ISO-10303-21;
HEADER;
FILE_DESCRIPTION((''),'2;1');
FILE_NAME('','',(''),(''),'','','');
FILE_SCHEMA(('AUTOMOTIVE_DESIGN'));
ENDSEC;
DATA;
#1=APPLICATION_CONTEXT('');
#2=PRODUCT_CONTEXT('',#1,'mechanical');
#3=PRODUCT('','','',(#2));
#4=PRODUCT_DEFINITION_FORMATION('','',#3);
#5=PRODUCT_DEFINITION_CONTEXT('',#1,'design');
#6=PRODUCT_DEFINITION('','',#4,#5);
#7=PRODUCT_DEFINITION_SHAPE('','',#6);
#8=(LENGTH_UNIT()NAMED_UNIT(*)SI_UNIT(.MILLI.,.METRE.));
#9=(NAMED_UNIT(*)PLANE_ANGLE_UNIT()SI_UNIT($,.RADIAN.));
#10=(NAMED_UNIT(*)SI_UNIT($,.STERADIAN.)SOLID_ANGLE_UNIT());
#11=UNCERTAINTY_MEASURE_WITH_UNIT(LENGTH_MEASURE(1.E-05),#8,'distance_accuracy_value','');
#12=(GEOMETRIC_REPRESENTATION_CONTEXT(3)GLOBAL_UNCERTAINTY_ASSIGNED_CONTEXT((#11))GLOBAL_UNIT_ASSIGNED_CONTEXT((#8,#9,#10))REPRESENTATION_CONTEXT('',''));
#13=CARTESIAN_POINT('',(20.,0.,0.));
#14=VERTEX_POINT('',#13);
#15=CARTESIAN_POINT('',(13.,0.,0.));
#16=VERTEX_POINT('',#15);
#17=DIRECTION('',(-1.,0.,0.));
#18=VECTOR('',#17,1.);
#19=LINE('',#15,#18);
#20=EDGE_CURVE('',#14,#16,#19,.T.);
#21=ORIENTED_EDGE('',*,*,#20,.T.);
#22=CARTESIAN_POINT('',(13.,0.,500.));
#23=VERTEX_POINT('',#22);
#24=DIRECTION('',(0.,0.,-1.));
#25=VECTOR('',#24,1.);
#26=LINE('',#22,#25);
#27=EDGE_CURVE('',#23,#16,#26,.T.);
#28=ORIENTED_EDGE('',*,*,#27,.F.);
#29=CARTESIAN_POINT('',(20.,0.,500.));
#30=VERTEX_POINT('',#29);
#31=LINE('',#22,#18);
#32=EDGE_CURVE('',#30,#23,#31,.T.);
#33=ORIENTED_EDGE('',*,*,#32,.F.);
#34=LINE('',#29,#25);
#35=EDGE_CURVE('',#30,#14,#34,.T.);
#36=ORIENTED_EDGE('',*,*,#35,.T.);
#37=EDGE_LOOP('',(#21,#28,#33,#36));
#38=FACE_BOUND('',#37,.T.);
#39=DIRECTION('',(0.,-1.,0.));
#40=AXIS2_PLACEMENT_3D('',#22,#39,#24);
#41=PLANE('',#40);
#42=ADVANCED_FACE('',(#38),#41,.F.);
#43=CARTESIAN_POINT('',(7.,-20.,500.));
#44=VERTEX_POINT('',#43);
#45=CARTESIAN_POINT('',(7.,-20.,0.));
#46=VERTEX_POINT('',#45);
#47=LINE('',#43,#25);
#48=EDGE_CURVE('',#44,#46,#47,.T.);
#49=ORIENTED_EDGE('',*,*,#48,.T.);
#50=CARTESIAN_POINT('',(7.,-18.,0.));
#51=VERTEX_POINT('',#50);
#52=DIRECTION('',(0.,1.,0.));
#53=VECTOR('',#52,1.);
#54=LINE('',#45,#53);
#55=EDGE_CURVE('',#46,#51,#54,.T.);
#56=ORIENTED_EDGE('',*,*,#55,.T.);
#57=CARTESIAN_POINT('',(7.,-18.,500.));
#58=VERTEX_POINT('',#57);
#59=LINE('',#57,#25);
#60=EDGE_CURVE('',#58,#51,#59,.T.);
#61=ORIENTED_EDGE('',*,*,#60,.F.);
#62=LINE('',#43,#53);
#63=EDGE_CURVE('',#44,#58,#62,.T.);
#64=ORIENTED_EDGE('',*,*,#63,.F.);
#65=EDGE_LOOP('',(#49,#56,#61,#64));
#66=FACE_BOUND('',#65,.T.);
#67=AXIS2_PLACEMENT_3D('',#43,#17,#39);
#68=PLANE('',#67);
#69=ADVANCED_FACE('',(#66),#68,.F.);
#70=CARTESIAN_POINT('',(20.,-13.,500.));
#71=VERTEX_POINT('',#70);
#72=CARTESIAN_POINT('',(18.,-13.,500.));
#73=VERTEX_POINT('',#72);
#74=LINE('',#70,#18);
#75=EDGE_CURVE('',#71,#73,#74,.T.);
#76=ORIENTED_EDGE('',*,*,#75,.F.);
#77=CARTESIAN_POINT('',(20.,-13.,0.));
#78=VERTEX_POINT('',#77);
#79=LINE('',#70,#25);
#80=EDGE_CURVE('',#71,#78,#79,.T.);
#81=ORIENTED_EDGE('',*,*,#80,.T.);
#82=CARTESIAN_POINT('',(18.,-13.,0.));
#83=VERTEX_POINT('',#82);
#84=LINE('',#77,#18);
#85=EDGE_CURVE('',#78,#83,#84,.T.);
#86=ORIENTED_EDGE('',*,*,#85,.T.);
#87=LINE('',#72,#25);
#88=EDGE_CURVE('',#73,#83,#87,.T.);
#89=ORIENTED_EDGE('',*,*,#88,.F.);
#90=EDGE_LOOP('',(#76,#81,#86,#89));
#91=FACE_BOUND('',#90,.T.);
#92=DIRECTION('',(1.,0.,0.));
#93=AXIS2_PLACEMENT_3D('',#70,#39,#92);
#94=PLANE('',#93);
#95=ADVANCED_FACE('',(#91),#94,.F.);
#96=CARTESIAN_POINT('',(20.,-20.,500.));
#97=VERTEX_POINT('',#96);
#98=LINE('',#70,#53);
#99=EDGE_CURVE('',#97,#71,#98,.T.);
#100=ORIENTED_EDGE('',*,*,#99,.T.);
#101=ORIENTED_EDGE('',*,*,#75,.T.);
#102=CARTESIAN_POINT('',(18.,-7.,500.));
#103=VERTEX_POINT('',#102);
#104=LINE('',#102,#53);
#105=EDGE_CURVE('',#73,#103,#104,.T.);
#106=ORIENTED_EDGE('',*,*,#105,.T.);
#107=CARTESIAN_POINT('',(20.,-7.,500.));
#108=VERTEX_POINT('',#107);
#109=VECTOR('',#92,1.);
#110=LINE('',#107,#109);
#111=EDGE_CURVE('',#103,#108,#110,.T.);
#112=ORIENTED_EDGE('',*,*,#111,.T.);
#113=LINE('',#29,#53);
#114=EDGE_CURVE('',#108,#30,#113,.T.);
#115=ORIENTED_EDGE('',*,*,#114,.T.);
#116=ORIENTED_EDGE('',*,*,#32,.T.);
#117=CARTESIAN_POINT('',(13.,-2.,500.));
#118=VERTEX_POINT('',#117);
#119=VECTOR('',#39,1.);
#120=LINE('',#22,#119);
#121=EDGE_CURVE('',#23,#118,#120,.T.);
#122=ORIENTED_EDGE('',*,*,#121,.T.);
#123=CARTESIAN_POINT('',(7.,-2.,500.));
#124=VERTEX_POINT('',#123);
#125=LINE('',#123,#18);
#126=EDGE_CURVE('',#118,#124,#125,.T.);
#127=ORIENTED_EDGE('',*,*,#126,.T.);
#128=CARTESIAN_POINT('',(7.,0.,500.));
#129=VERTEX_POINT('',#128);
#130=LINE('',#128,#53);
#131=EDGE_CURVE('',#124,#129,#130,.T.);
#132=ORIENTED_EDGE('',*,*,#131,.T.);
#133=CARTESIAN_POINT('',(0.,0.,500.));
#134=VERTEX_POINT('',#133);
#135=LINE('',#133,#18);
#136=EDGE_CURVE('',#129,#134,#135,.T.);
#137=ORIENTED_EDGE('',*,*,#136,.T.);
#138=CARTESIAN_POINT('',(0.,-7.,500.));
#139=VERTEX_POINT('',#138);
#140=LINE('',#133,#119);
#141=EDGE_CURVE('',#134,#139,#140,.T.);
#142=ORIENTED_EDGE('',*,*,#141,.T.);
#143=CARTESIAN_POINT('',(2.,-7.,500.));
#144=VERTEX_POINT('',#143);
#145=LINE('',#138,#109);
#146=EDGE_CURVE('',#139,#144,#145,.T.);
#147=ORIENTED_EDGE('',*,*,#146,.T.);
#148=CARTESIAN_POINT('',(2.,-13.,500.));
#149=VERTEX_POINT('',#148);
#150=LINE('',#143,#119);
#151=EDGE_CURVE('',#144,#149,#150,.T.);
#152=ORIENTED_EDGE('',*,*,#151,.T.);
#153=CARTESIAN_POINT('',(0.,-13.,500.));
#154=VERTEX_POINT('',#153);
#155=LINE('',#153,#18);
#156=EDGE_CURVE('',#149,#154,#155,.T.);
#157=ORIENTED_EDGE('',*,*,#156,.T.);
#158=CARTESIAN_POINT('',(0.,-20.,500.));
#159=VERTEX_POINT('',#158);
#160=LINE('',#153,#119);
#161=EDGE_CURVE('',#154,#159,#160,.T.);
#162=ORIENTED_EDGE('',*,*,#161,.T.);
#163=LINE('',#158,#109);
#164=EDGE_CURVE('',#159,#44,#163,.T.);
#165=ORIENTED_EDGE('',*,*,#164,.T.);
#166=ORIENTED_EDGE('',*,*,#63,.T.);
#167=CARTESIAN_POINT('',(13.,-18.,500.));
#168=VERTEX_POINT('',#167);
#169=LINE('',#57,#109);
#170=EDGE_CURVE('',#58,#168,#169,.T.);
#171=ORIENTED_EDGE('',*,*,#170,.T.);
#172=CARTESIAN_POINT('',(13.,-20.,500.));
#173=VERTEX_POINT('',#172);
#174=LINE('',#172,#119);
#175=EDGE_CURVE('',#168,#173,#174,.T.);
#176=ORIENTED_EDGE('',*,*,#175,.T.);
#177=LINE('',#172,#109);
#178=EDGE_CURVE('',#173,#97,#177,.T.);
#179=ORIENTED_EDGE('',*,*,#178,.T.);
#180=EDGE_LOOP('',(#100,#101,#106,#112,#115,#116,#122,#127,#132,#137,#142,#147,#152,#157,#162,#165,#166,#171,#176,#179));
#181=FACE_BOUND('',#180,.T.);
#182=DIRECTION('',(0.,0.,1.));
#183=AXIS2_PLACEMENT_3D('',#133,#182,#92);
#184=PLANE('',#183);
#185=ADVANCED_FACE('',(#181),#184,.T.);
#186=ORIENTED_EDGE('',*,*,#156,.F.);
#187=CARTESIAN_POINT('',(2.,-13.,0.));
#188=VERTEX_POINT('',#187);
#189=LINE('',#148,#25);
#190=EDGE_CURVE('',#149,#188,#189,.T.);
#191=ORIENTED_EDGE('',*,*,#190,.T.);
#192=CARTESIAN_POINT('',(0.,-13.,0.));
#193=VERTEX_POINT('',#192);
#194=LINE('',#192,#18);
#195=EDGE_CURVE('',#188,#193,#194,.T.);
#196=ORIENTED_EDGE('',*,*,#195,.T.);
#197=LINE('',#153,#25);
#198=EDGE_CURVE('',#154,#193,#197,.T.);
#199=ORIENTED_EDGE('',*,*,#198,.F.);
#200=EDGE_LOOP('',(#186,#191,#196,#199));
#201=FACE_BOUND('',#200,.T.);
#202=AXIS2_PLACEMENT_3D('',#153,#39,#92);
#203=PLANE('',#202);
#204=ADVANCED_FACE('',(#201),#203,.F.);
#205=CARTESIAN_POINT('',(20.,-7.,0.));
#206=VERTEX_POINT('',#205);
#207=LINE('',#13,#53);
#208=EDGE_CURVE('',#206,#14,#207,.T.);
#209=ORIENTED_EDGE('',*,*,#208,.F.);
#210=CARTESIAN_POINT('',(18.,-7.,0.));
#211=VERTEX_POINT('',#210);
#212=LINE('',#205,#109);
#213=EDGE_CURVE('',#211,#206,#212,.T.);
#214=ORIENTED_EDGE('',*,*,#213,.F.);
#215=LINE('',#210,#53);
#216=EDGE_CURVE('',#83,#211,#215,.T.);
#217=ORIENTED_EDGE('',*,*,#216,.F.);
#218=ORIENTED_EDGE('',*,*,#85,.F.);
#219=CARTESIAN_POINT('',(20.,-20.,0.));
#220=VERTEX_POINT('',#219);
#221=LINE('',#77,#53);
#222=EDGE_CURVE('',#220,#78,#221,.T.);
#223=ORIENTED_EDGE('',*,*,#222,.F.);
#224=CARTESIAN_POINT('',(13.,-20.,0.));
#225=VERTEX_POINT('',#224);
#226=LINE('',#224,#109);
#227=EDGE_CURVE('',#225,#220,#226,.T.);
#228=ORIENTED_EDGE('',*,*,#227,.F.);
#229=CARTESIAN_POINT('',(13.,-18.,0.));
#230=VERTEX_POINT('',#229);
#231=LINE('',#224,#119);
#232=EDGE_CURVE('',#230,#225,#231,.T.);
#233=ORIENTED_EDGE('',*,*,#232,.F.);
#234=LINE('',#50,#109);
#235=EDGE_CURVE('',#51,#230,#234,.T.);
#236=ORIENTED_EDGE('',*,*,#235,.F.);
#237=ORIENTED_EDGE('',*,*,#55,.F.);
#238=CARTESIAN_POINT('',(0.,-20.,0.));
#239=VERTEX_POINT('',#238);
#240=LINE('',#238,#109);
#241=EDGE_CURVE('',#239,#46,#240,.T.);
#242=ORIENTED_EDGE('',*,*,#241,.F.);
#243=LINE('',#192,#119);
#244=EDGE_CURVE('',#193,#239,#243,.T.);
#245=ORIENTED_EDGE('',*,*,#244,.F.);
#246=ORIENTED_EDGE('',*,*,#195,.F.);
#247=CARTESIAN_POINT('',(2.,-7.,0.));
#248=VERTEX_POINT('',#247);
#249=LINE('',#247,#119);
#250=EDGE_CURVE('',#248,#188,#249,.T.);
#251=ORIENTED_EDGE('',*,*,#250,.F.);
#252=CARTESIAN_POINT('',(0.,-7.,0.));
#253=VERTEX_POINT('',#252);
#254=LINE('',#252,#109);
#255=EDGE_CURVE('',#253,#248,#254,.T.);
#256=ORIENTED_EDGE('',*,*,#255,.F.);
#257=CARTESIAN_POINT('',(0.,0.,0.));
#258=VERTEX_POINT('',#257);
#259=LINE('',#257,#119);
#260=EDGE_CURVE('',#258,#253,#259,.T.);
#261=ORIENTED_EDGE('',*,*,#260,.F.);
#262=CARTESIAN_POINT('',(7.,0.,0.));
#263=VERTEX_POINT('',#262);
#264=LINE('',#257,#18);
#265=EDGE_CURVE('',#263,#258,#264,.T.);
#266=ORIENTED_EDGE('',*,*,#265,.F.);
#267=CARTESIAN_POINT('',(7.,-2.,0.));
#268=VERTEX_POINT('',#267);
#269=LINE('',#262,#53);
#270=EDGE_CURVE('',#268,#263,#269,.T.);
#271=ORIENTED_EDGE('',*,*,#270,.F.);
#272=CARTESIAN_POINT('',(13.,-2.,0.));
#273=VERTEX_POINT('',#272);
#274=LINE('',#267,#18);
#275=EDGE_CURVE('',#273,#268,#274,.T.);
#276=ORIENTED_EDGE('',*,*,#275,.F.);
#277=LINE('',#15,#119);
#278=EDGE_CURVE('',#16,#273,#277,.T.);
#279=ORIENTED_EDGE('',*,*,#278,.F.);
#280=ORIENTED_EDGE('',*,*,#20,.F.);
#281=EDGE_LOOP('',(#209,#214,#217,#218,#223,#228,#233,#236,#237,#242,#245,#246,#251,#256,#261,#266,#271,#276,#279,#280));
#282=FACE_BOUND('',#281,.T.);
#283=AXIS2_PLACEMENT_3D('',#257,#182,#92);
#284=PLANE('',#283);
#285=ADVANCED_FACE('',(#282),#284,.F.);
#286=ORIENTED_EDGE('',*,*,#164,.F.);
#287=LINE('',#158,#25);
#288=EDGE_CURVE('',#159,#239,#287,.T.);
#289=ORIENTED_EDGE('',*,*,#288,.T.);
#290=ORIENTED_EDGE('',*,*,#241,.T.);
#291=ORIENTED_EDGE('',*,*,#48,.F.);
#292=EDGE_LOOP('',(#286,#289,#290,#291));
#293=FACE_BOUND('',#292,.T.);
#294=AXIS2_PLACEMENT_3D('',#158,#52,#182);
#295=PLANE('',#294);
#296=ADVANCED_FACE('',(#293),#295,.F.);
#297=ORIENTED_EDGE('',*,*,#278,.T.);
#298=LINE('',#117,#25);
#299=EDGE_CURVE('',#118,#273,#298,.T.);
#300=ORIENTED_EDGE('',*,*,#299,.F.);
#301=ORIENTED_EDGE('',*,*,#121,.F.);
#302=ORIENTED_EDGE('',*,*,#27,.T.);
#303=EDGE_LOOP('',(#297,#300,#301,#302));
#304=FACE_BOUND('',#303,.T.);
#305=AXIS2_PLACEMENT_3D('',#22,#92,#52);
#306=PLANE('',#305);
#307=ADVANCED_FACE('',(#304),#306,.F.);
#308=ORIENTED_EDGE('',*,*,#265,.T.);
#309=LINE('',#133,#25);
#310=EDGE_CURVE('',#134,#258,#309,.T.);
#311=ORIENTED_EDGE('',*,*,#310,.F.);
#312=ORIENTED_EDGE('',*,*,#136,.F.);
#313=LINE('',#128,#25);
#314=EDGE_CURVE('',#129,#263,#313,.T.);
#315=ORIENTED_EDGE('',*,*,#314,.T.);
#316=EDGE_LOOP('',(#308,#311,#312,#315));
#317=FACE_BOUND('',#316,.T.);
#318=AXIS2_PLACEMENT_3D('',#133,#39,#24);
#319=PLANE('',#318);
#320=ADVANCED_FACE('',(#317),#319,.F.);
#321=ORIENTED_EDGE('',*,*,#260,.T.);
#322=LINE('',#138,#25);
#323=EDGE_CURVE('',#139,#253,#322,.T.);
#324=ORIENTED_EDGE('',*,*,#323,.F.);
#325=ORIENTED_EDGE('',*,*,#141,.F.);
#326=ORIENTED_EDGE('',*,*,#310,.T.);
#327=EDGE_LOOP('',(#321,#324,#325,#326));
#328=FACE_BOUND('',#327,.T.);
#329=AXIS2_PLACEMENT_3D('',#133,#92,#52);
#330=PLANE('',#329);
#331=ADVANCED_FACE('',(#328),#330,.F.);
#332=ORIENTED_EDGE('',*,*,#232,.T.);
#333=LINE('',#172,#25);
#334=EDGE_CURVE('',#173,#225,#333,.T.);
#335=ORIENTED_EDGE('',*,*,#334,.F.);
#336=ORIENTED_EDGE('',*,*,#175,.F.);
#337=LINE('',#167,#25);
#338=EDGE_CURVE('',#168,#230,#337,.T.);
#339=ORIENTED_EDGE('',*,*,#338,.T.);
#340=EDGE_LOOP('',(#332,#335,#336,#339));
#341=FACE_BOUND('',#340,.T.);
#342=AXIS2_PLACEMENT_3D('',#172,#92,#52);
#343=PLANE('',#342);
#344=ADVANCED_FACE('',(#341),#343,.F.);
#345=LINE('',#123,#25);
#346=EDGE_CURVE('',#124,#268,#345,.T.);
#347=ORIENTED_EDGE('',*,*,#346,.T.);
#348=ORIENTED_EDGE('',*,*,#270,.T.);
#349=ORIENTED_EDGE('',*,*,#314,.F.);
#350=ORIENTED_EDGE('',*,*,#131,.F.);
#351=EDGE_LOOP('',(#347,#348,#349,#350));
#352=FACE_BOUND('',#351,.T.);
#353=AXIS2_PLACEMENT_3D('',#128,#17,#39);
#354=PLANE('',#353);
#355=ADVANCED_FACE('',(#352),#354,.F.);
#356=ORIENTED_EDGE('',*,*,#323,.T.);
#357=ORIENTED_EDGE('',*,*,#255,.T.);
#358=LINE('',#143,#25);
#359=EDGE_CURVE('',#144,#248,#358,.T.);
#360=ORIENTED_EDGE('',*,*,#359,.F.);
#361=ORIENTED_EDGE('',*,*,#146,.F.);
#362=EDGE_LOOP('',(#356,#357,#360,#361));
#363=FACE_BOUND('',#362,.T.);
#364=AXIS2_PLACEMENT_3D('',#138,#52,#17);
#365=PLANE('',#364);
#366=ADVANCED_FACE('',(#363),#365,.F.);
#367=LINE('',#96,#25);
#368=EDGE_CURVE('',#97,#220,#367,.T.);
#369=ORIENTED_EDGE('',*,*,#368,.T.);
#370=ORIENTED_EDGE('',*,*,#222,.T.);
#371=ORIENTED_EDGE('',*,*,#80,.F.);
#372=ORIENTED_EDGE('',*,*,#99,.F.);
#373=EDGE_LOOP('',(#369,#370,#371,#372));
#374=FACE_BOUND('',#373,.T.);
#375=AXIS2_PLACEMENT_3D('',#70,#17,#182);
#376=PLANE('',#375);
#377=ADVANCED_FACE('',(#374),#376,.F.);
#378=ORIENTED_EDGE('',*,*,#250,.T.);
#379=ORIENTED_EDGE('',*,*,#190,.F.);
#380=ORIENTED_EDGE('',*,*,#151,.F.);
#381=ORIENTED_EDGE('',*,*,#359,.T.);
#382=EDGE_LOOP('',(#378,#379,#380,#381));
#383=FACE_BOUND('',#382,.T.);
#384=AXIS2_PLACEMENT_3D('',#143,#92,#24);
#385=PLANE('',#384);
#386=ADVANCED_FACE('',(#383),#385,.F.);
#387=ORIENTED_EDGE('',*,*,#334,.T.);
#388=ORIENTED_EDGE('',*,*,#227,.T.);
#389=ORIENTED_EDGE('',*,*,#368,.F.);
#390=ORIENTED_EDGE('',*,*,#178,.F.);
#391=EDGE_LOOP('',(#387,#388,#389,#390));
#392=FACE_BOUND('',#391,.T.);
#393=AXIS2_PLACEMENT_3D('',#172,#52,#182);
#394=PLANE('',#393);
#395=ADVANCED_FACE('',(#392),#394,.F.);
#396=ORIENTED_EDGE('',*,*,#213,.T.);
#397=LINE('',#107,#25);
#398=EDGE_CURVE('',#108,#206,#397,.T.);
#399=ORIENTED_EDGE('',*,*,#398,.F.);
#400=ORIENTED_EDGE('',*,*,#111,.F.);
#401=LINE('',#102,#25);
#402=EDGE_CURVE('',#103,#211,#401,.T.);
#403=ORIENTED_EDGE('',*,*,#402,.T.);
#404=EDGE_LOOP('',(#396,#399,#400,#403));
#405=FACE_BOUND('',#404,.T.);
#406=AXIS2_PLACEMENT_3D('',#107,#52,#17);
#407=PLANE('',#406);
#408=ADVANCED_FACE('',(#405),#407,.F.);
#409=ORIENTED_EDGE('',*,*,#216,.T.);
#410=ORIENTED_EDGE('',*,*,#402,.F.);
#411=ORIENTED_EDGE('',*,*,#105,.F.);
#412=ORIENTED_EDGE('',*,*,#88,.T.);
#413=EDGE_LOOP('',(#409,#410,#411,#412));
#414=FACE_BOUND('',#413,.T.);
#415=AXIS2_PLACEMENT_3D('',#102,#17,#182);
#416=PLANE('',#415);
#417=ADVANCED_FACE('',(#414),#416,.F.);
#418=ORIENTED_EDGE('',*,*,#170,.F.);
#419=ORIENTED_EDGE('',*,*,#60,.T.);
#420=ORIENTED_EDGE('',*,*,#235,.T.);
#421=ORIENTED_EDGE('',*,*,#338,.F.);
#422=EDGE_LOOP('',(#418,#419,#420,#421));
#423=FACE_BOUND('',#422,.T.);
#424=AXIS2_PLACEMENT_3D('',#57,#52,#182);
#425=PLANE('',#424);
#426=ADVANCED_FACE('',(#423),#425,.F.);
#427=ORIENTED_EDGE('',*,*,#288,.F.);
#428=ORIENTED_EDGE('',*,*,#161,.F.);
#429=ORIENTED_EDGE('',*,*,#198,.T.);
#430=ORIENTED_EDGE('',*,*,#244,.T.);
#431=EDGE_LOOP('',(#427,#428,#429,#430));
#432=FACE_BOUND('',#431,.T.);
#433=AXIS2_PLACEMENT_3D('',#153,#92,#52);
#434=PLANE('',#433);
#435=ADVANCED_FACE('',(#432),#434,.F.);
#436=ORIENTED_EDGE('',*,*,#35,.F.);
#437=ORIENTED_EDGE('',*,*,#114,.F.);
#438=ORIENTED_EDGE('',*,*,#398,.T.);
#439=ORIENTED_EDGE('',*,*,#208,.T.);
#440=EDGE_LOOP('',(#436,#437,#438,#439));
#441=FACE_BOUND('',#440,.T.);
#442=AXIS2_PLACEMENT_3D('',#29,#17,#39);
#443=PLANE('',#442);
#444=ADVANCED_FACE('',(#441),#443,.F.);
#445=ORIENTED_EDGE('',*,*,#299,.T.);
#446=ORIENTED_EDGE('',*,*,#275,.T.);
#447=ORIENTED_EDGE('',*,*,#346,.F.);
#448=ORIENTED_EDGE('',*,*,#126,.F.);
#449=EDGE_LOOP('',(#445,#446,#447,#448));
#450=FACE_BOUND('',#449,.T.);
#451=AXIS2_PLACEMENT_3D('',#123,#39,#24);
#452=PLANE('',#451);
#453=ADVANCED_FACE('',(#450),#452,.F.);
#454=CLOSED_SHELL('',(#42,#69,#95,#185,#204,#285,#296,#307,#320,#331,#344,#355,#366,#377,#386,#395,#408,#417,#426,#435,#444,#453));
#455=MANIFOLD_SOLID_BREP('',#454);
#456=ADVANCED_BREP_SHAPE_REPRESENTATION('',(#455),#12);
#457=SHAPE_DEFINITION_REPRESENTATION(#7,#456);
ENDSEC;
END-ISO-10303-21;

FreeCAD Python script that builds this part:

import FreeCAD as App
import Part
import Sketcher
from FreeCAD import Vector


def add_polygon(sketch, points):
    """Adds a closed chain of lines whose ends are joined by coincident constraints."""
    first, n = sketch.GeometryCount, len(points)
    for a, b in zip(points, points[1:] + points[:1]):
        sketch.addGeometry(Part.LineSegment(App.Vector(*a, 0), App.Vector(*b, 0)), False)
    for i in range(n):
        sketch.addConstraint(Sketcher.Constraint("Coincident", first + i, 2, first + (i + 1) % n, 1))

doc = App.newDocument("Part")
body = doc.addObject("PartDesign::Body", "Body")

# Sketch on XY plane
sketch1 = body.newObject("Sketcher::SketchObject", "Sketch")
sketch1.AttachmentSupport = (doc.getObject("XY_Plane"), [""])
sketch1.MapMode = "FlatFace"
add_polygon(sketch1, [(0, -13), (0, -20), (7, -20), (7, -18), (13, -18), (13, -20), (20, -20), (20, -13), (18, -13), (18, -7), (20, -7), (20, 0), (13, 0), (13, -2), (7, -2), (7, 0), (0, 0), (0, -7), (2, -7), (2, -13)])  # lines 0-19
sketch1.addConstraint([
    Sketcher.Constraint("Vertical", 0),
    Sketcher.Constraint("Horizontal", 1),
    Sketcher.Constraint("Vertical", 2),
    Sketcher.Constraint("Horizontal", 3),
    Sketcher.Constraint("Vertical", 4),
    Sketcher.Constraint("Horizontal", 5),
    Sketcher.Constraint("Vertical", 6),
    Sketcher.Constraint("Horizontal", 7),
    Sketcher.Constraint("Vertical", 8),
    Sketcher.Constraint("Horizontal", 9),
    Sketcher.Constraint("Vertical", 10),
    Sketcher.Constraint("Horizontal", 11),
    Sketcher.Constraint("Vertical", 12),
    Sketcher.Constraint("Horizontal", 13),
    Sketcher.Constraint("Vertical", 14),
    Sketcher.Constraint("Horizontal", 15),
    Sketcher.Constraint("Vertical", 16),
    Sketcher.Constraint("Horizontal", 17),
    Sketcher.Constraint("Vertical", 18),
    Sketcher.Constraint("Horizontal", 19),
    Sketcher.Constraint("Coincident", 15, 2, -1, 1),
    Sketcher.Constraint("PointOnObject", 0, 2, -2),
    Sketcher.Constraint("PointOnObject", 10, 2, -1),
    Sketcher.Constraint("Horizontal", 1, 2, 4, 2),
    Sketcher.Constraint("Horizontal", 9, 2, 16, 2),
    Sketcher.Constraint("Horizontal", 7, 2, 18, 2),
    Sketcher.Constraint("Vertical", 6, 2, 9, 2),
    Sketcher.Constraint("Vertical", 4, 2, 11, 2),
    Sketcher.Constraint("Vertical", 2, 2, 13, 2),
    Sketcher.Constraint("Equal", 1, 5),
    Sketcher.Constraint("Equal", 9, 17),
    Sketcher.Constraint("Equal", 15, 0),
    Sketcher.Constraint("Equal", 19, 2),
    Sketcher.Constraint("Equal", 13, 8),
    Sketcher.Constraint("Equal", 6, 10),
    Sketcher.Constraint("Equal", 4, 12),
    Sketcher.Constraint("DistanceX", 1, 1, 1, 2, 7.0),
    Sketcher.Constraint("DistanceX", 3, 1, 3, 2, 6.0),
    Sketcher.Constraint("DistanceX", 7, 2, 7, 1, 2.0),
])
pad1 = body.newObject("PartDesign::Pad", "Pad")
pad1.Profile = sketch1
pad1.Length = 500

doc.recompute()
